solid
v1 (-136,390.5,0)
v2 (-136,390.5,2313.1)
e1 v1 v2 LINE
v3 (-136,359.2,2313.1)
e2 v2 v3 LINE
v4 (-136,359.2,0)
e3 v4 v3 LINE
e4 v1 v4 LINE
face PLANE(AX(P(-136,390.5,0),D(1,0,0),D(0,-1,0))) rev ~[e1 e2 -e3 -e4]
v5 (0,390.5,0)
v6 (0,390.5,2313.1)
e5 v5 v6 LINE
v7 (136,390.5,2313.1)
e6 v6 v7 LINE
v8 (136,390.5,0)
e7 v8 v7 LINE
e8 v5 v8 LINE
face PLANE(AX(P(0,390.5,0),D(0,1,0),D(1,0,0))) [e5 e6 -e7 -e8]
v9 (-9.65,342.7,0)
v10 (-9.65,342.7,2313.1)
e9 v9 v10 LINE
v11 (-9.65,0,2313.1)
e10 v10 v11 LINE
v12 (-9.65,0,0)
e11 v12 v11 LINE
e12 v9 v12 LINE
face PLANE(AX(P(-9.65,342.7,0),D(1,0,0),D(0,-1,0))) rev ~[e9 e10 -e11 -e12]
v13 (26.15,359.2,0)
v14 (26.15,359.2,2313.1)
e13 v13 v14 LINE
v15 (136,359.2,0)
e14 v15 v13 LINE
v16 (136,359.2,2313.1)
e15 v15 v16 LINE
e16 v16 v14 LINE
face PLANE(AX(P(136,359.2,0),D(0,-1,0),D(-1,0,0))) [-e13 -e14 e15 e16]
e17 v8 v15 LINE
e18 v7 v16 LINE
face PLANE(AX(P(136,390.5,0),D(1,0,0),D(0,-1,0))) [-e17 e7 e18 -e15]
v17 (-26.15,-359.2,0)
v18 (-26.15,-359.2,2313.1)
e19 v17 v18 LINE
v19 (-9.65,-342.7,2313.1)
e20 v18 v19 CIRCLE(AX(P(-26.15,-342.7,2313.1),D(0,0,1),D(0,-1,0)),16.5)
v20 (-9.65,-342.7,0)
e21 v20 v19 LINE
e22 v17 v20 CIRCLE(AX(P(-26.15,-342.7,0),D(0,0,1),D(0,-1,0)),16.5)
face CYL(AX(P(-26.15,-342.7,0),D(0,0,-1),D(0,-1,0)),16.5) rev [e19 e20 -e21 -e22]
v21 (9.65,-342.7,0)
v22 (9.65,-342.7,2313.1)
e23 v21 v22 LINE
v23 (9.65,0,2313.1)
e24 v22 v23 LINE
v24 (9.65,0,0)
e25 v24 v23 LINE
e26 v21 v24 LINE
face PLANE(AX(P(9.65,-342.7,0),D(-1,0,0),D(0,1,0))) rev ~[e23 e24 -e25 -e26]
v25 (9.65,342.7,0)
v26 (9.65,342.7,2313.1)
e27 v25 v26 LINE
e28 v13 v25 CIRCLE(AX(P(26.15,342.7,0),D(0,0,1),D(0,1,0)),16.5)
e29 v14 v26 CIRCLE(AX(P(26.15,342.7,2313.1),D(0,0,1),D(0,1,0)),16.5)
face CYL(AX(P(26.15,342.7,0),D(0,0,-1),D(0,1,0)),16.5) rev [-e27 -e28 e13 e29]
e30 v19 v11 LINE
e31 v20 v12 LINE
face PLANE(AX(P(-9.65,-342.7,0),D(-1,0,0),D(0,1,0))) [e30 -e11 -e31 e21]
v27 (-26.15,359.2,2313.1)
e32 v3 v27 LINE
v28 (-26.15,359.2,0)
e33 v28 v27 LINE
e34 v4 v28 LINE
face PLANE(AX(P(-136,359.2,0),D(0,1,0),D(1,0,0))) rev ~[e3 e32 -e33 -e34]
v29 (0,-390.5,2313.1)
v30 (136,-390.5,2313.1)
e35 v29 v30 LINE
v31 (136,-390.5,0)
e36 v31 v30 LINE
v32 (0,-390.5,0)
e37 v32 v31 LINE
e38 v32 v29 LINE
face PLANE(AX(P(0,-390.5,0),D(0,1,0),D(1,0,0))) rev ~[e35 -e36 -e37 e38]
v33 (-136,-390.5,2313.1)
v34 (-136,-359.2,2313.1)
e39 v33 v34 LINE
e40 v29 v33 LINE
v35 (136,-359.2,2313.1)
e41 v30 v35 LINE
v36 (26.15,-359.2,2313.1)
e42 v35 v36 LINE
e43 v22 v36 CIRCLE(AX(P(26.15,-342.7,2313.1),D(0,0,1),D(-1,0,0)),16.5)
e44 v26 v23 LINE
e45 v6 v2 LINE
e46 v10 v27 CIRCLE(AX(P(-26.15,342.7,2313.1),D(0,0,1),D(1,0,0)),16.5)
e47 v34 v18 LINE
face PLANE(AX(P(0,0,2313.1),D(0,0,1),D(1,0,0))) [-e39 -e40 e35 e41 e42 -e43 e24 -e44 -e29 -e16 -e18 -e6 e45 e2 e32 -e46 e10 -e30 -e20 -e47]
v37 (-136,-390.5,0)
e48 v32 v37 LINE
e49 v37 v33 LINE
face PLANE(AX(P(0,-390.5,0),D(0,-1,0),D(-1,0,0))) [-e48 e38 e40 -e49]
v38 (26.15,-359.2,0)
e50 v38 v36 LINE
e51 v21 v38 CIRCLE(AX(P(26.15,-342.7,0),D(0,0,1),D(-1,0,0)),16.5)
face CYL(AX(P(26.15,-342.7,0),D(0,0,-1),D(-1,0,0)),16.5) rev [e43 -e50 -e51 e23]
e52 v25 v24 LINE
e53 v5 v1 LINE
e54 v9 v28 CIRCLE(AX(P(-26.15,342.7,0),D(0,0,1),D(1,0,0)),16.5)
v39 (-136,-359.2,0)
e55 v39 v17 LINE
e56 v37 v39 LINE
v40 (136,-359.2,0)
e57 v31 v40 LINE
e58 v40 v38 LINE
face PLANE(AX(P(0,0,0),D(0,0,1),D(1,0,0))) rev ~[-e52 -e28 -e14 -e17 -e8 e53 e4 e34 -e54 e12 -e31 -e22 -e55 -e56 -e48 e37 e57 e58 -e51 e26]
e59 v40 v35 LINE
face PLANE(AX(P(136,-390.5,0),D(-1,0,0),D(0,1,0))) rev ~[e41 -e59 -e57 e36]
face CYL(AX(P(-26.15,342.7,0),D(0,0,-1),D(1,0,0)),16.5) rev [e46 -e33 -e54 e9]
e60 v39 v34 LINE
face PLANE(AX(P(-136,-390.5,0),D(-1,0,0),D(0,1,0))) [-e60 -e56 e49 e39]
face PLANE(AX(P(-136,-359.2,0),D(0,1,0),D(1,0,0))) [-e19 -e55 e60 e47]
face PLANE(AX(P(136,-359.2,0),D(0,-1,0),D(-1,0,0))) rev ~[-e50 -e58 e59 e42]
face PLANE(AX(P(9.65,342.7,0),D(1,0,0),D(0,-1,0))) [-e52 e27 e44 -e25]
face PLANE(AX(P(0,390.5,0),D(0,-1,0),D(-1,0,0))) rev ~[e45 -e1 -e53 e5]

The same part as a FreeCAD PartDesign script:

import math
import FreeCAD as App
import Part
import Sketcher

doc = App.newDocument("Part")
params = doc.addObject("Spreadsheet::Sheet", "Params")
for row, (alias, value) in enumerate([
    ("sketch1_radius", "16.5 mm"),
    ("sketch1_height", "31.3 mm"),
    ("pad1_length", "2313.1 mm"),
], start=1):
    params.set(f"A{row}", alias)
    params.set(f"B{row}", "=" + value)
    params.setAlias(f"B{row}", alias)

body = doc.addObject("PartDesign::Body", "Body")

# Sketch on XY plane
sketch1 = body.newObject("Sketcher::SketchObject", "Sketch")
sketch1.AttachmentSupport = (doc.getObject("XY_Plane"), [""])
sketch1.MapMode = "FlatFace"
sketch1.addGeometry([
    Part.LineSegment(App.Vector(-136, -359, 0), App.Vector(-136, -390, 0)),  # 0
    Part.LineSegment(App.Vector(-136, -390, 0), App.Vector(136, -390, 0)),  # 1
    Part.LineSegment(App.Vector(136, -390, 0), App.Vector(136, -359, 0)),  # 2
    Part.LineSegment(App.Vector(136, -359, 0), App.Vector(26, -359, 0)),  # 3
    Part.ArcOfCircle(Part.Circle(App.Vector(26, -343, 0), App.Vector(0, 0, 1), 16), math.radians(180), math.radians(270)),  # 4
    Part.LineSegment(App.Vector(10, -343, 0), App.Vector(10, 343, 0)),  # 5
    Part.ArcOfCircle(Part.Circle(App.Vector(26, 343, 0), App.Vector(0, 0, 1), 16), math.radians(90), math.radians(180)),  # 6
    Part.LineSegment(App.Vector(26, 359, 0), App.Vector(136, 359, 0)),  # 7
    Part.LineSegment(App.Vector(136, 359, 0), App.Vector(136, 390, 0)),  # 8
    Part.LineSegment(App.Vector(136, 390, 0), App.Vector(-136, 390, 0)),  # 9
    Part.LineSegment(App.Vector(-136, 390, 0), App.Vector(-136, 359, 0)),  # 10
    Part.LineSegment(App.Vector(-136, 359, 0), App.Vector(-26, 359, 0)),  # 11
    Part.ArcOfCircle(Part.Circle(App.Vector(-26, 343, 0), App.Vector(0, 0, 1), 16), math.radians(0), math.radians(90)),  # 12
    Part.LineSegment(App.Vector(-10, 343, 0), App.Vector(-10, -343, 0)),  # 13
    Part.ArcOfCircle(Part.Circle(App.Vector(-26, -343, 0), App.Vector(0, 0, 1), 16), math.radians(-90), math.radians(0)),  # 14
    Part.LineSegment(App.Vector(-26, -359, 0), App.Vector(-136, -359, 0)),  # 15
], False)
sketch1.addConstraint([
    Sketcher.Constraint("Coincident", 0, 2, 1, 1),
    Sketcher.Constraint("Coincident", 1, 2, 2, 1),
    Sketcher.Constraint("Coincident", 2, 2, 3, 1),
    Sketcher.Constraint("Tangent", 3, 2, 4, 2),
    Sketcher.Constraint("Tangent", 4, 1, 5, 1),
    Sketcher.Constraint("Tangent", 5, 2, 6, 2),
    Sketcher.Constraint("Tangent", 6, 1, 7, 1),
    Sketcher.Constraint("Coincident", 7, 2, 8, 1),
    Sketcher.Constraint("Coincident", 8, 2, 9, 1),
    Sketcher.Constraint("Coincident", 9, 2, 10, 1),
    Sketcher.Constraint("Coincident", 10, 2, 11, 1),
    Sketcher.Constraint("Tangent", 11, 2, 12, 2),
    Sketcher.Constraint("Tangent", 12, 1, 13, 1),
    Sketcher.Constraint("Tangent", 13, 2, 14, 2),
    Sketcher.Constraint("Tangent", 14, 1, 15, 1),
    Sketcher.Constraint("Coincident", 15, 2, 0, 1),
    Sketcher.Constraint("Vertical", 0),
    Sketcher.Constraint("Horizontal", 1),
    Sketcher.Constraint("Vertical", 2),
    Sketcher.Constraint("Horizontal", 3),
    Sketcher.Constraint("Vertical", 5),
    Sketcher.Constraint("Horizontal", 7),
    Sketcher.Constraint("Vertical", 8),
    Sketcher.Constraint("Horizontal", 9),
    Sketcher.Constraint("Vertical", 10),
    Sketcher.Constraint("Horizontal", 11),
    Sketcher.Constraint("Vertical", 13),
    Sketcher.Constraint("Horizontal", 15),
    Sketcher.Constraint("Equal", 4, 6),
    Sketcher.Constraint("Equal", 6, 12),
    Sketcher.Constraint("Equal", 12, 14),
    Sketcher.Constraint("Symmetric", 4, 3, 12, 3, -1, 1),
    Sketcher.Constraint("Symmetric", 0, 2, 8, 2, -1, 1),
    Sketcher.Constraint("Symmetric", 7, 2, 10, 2, -2),
    Sketcher.Constraint("Symmetric", 2, 2, 15, 2, -2),
    Sketcher.Constraint("Radius", 4, 16.5),
    Sketcher.Constraint("DistanceY", 0, 2, 0, 1, 31.3),
    Sketcher.Constraint("DistanceX", 0, 2, -1, 1, 136.0),
    Sketcher.Constraint("DistanceY", 0, 2, -1, 1, 390.5),
    Sketcher.Constraint("DistanceX", -1, 1, 4, 1, 9.65),
])
sketch1.setExpression("Constraints[35]", "Params.sketch1_radius")
sketch1.setExpression("Constraints[36]", "Params.sketch1_height")
pad1 = body.newObject("PartDesign::Pad", "Pad")
pad1.Profile = sketch1
pad1.setExpression("Length", "Params.pad1_length")

doc.recompute()
